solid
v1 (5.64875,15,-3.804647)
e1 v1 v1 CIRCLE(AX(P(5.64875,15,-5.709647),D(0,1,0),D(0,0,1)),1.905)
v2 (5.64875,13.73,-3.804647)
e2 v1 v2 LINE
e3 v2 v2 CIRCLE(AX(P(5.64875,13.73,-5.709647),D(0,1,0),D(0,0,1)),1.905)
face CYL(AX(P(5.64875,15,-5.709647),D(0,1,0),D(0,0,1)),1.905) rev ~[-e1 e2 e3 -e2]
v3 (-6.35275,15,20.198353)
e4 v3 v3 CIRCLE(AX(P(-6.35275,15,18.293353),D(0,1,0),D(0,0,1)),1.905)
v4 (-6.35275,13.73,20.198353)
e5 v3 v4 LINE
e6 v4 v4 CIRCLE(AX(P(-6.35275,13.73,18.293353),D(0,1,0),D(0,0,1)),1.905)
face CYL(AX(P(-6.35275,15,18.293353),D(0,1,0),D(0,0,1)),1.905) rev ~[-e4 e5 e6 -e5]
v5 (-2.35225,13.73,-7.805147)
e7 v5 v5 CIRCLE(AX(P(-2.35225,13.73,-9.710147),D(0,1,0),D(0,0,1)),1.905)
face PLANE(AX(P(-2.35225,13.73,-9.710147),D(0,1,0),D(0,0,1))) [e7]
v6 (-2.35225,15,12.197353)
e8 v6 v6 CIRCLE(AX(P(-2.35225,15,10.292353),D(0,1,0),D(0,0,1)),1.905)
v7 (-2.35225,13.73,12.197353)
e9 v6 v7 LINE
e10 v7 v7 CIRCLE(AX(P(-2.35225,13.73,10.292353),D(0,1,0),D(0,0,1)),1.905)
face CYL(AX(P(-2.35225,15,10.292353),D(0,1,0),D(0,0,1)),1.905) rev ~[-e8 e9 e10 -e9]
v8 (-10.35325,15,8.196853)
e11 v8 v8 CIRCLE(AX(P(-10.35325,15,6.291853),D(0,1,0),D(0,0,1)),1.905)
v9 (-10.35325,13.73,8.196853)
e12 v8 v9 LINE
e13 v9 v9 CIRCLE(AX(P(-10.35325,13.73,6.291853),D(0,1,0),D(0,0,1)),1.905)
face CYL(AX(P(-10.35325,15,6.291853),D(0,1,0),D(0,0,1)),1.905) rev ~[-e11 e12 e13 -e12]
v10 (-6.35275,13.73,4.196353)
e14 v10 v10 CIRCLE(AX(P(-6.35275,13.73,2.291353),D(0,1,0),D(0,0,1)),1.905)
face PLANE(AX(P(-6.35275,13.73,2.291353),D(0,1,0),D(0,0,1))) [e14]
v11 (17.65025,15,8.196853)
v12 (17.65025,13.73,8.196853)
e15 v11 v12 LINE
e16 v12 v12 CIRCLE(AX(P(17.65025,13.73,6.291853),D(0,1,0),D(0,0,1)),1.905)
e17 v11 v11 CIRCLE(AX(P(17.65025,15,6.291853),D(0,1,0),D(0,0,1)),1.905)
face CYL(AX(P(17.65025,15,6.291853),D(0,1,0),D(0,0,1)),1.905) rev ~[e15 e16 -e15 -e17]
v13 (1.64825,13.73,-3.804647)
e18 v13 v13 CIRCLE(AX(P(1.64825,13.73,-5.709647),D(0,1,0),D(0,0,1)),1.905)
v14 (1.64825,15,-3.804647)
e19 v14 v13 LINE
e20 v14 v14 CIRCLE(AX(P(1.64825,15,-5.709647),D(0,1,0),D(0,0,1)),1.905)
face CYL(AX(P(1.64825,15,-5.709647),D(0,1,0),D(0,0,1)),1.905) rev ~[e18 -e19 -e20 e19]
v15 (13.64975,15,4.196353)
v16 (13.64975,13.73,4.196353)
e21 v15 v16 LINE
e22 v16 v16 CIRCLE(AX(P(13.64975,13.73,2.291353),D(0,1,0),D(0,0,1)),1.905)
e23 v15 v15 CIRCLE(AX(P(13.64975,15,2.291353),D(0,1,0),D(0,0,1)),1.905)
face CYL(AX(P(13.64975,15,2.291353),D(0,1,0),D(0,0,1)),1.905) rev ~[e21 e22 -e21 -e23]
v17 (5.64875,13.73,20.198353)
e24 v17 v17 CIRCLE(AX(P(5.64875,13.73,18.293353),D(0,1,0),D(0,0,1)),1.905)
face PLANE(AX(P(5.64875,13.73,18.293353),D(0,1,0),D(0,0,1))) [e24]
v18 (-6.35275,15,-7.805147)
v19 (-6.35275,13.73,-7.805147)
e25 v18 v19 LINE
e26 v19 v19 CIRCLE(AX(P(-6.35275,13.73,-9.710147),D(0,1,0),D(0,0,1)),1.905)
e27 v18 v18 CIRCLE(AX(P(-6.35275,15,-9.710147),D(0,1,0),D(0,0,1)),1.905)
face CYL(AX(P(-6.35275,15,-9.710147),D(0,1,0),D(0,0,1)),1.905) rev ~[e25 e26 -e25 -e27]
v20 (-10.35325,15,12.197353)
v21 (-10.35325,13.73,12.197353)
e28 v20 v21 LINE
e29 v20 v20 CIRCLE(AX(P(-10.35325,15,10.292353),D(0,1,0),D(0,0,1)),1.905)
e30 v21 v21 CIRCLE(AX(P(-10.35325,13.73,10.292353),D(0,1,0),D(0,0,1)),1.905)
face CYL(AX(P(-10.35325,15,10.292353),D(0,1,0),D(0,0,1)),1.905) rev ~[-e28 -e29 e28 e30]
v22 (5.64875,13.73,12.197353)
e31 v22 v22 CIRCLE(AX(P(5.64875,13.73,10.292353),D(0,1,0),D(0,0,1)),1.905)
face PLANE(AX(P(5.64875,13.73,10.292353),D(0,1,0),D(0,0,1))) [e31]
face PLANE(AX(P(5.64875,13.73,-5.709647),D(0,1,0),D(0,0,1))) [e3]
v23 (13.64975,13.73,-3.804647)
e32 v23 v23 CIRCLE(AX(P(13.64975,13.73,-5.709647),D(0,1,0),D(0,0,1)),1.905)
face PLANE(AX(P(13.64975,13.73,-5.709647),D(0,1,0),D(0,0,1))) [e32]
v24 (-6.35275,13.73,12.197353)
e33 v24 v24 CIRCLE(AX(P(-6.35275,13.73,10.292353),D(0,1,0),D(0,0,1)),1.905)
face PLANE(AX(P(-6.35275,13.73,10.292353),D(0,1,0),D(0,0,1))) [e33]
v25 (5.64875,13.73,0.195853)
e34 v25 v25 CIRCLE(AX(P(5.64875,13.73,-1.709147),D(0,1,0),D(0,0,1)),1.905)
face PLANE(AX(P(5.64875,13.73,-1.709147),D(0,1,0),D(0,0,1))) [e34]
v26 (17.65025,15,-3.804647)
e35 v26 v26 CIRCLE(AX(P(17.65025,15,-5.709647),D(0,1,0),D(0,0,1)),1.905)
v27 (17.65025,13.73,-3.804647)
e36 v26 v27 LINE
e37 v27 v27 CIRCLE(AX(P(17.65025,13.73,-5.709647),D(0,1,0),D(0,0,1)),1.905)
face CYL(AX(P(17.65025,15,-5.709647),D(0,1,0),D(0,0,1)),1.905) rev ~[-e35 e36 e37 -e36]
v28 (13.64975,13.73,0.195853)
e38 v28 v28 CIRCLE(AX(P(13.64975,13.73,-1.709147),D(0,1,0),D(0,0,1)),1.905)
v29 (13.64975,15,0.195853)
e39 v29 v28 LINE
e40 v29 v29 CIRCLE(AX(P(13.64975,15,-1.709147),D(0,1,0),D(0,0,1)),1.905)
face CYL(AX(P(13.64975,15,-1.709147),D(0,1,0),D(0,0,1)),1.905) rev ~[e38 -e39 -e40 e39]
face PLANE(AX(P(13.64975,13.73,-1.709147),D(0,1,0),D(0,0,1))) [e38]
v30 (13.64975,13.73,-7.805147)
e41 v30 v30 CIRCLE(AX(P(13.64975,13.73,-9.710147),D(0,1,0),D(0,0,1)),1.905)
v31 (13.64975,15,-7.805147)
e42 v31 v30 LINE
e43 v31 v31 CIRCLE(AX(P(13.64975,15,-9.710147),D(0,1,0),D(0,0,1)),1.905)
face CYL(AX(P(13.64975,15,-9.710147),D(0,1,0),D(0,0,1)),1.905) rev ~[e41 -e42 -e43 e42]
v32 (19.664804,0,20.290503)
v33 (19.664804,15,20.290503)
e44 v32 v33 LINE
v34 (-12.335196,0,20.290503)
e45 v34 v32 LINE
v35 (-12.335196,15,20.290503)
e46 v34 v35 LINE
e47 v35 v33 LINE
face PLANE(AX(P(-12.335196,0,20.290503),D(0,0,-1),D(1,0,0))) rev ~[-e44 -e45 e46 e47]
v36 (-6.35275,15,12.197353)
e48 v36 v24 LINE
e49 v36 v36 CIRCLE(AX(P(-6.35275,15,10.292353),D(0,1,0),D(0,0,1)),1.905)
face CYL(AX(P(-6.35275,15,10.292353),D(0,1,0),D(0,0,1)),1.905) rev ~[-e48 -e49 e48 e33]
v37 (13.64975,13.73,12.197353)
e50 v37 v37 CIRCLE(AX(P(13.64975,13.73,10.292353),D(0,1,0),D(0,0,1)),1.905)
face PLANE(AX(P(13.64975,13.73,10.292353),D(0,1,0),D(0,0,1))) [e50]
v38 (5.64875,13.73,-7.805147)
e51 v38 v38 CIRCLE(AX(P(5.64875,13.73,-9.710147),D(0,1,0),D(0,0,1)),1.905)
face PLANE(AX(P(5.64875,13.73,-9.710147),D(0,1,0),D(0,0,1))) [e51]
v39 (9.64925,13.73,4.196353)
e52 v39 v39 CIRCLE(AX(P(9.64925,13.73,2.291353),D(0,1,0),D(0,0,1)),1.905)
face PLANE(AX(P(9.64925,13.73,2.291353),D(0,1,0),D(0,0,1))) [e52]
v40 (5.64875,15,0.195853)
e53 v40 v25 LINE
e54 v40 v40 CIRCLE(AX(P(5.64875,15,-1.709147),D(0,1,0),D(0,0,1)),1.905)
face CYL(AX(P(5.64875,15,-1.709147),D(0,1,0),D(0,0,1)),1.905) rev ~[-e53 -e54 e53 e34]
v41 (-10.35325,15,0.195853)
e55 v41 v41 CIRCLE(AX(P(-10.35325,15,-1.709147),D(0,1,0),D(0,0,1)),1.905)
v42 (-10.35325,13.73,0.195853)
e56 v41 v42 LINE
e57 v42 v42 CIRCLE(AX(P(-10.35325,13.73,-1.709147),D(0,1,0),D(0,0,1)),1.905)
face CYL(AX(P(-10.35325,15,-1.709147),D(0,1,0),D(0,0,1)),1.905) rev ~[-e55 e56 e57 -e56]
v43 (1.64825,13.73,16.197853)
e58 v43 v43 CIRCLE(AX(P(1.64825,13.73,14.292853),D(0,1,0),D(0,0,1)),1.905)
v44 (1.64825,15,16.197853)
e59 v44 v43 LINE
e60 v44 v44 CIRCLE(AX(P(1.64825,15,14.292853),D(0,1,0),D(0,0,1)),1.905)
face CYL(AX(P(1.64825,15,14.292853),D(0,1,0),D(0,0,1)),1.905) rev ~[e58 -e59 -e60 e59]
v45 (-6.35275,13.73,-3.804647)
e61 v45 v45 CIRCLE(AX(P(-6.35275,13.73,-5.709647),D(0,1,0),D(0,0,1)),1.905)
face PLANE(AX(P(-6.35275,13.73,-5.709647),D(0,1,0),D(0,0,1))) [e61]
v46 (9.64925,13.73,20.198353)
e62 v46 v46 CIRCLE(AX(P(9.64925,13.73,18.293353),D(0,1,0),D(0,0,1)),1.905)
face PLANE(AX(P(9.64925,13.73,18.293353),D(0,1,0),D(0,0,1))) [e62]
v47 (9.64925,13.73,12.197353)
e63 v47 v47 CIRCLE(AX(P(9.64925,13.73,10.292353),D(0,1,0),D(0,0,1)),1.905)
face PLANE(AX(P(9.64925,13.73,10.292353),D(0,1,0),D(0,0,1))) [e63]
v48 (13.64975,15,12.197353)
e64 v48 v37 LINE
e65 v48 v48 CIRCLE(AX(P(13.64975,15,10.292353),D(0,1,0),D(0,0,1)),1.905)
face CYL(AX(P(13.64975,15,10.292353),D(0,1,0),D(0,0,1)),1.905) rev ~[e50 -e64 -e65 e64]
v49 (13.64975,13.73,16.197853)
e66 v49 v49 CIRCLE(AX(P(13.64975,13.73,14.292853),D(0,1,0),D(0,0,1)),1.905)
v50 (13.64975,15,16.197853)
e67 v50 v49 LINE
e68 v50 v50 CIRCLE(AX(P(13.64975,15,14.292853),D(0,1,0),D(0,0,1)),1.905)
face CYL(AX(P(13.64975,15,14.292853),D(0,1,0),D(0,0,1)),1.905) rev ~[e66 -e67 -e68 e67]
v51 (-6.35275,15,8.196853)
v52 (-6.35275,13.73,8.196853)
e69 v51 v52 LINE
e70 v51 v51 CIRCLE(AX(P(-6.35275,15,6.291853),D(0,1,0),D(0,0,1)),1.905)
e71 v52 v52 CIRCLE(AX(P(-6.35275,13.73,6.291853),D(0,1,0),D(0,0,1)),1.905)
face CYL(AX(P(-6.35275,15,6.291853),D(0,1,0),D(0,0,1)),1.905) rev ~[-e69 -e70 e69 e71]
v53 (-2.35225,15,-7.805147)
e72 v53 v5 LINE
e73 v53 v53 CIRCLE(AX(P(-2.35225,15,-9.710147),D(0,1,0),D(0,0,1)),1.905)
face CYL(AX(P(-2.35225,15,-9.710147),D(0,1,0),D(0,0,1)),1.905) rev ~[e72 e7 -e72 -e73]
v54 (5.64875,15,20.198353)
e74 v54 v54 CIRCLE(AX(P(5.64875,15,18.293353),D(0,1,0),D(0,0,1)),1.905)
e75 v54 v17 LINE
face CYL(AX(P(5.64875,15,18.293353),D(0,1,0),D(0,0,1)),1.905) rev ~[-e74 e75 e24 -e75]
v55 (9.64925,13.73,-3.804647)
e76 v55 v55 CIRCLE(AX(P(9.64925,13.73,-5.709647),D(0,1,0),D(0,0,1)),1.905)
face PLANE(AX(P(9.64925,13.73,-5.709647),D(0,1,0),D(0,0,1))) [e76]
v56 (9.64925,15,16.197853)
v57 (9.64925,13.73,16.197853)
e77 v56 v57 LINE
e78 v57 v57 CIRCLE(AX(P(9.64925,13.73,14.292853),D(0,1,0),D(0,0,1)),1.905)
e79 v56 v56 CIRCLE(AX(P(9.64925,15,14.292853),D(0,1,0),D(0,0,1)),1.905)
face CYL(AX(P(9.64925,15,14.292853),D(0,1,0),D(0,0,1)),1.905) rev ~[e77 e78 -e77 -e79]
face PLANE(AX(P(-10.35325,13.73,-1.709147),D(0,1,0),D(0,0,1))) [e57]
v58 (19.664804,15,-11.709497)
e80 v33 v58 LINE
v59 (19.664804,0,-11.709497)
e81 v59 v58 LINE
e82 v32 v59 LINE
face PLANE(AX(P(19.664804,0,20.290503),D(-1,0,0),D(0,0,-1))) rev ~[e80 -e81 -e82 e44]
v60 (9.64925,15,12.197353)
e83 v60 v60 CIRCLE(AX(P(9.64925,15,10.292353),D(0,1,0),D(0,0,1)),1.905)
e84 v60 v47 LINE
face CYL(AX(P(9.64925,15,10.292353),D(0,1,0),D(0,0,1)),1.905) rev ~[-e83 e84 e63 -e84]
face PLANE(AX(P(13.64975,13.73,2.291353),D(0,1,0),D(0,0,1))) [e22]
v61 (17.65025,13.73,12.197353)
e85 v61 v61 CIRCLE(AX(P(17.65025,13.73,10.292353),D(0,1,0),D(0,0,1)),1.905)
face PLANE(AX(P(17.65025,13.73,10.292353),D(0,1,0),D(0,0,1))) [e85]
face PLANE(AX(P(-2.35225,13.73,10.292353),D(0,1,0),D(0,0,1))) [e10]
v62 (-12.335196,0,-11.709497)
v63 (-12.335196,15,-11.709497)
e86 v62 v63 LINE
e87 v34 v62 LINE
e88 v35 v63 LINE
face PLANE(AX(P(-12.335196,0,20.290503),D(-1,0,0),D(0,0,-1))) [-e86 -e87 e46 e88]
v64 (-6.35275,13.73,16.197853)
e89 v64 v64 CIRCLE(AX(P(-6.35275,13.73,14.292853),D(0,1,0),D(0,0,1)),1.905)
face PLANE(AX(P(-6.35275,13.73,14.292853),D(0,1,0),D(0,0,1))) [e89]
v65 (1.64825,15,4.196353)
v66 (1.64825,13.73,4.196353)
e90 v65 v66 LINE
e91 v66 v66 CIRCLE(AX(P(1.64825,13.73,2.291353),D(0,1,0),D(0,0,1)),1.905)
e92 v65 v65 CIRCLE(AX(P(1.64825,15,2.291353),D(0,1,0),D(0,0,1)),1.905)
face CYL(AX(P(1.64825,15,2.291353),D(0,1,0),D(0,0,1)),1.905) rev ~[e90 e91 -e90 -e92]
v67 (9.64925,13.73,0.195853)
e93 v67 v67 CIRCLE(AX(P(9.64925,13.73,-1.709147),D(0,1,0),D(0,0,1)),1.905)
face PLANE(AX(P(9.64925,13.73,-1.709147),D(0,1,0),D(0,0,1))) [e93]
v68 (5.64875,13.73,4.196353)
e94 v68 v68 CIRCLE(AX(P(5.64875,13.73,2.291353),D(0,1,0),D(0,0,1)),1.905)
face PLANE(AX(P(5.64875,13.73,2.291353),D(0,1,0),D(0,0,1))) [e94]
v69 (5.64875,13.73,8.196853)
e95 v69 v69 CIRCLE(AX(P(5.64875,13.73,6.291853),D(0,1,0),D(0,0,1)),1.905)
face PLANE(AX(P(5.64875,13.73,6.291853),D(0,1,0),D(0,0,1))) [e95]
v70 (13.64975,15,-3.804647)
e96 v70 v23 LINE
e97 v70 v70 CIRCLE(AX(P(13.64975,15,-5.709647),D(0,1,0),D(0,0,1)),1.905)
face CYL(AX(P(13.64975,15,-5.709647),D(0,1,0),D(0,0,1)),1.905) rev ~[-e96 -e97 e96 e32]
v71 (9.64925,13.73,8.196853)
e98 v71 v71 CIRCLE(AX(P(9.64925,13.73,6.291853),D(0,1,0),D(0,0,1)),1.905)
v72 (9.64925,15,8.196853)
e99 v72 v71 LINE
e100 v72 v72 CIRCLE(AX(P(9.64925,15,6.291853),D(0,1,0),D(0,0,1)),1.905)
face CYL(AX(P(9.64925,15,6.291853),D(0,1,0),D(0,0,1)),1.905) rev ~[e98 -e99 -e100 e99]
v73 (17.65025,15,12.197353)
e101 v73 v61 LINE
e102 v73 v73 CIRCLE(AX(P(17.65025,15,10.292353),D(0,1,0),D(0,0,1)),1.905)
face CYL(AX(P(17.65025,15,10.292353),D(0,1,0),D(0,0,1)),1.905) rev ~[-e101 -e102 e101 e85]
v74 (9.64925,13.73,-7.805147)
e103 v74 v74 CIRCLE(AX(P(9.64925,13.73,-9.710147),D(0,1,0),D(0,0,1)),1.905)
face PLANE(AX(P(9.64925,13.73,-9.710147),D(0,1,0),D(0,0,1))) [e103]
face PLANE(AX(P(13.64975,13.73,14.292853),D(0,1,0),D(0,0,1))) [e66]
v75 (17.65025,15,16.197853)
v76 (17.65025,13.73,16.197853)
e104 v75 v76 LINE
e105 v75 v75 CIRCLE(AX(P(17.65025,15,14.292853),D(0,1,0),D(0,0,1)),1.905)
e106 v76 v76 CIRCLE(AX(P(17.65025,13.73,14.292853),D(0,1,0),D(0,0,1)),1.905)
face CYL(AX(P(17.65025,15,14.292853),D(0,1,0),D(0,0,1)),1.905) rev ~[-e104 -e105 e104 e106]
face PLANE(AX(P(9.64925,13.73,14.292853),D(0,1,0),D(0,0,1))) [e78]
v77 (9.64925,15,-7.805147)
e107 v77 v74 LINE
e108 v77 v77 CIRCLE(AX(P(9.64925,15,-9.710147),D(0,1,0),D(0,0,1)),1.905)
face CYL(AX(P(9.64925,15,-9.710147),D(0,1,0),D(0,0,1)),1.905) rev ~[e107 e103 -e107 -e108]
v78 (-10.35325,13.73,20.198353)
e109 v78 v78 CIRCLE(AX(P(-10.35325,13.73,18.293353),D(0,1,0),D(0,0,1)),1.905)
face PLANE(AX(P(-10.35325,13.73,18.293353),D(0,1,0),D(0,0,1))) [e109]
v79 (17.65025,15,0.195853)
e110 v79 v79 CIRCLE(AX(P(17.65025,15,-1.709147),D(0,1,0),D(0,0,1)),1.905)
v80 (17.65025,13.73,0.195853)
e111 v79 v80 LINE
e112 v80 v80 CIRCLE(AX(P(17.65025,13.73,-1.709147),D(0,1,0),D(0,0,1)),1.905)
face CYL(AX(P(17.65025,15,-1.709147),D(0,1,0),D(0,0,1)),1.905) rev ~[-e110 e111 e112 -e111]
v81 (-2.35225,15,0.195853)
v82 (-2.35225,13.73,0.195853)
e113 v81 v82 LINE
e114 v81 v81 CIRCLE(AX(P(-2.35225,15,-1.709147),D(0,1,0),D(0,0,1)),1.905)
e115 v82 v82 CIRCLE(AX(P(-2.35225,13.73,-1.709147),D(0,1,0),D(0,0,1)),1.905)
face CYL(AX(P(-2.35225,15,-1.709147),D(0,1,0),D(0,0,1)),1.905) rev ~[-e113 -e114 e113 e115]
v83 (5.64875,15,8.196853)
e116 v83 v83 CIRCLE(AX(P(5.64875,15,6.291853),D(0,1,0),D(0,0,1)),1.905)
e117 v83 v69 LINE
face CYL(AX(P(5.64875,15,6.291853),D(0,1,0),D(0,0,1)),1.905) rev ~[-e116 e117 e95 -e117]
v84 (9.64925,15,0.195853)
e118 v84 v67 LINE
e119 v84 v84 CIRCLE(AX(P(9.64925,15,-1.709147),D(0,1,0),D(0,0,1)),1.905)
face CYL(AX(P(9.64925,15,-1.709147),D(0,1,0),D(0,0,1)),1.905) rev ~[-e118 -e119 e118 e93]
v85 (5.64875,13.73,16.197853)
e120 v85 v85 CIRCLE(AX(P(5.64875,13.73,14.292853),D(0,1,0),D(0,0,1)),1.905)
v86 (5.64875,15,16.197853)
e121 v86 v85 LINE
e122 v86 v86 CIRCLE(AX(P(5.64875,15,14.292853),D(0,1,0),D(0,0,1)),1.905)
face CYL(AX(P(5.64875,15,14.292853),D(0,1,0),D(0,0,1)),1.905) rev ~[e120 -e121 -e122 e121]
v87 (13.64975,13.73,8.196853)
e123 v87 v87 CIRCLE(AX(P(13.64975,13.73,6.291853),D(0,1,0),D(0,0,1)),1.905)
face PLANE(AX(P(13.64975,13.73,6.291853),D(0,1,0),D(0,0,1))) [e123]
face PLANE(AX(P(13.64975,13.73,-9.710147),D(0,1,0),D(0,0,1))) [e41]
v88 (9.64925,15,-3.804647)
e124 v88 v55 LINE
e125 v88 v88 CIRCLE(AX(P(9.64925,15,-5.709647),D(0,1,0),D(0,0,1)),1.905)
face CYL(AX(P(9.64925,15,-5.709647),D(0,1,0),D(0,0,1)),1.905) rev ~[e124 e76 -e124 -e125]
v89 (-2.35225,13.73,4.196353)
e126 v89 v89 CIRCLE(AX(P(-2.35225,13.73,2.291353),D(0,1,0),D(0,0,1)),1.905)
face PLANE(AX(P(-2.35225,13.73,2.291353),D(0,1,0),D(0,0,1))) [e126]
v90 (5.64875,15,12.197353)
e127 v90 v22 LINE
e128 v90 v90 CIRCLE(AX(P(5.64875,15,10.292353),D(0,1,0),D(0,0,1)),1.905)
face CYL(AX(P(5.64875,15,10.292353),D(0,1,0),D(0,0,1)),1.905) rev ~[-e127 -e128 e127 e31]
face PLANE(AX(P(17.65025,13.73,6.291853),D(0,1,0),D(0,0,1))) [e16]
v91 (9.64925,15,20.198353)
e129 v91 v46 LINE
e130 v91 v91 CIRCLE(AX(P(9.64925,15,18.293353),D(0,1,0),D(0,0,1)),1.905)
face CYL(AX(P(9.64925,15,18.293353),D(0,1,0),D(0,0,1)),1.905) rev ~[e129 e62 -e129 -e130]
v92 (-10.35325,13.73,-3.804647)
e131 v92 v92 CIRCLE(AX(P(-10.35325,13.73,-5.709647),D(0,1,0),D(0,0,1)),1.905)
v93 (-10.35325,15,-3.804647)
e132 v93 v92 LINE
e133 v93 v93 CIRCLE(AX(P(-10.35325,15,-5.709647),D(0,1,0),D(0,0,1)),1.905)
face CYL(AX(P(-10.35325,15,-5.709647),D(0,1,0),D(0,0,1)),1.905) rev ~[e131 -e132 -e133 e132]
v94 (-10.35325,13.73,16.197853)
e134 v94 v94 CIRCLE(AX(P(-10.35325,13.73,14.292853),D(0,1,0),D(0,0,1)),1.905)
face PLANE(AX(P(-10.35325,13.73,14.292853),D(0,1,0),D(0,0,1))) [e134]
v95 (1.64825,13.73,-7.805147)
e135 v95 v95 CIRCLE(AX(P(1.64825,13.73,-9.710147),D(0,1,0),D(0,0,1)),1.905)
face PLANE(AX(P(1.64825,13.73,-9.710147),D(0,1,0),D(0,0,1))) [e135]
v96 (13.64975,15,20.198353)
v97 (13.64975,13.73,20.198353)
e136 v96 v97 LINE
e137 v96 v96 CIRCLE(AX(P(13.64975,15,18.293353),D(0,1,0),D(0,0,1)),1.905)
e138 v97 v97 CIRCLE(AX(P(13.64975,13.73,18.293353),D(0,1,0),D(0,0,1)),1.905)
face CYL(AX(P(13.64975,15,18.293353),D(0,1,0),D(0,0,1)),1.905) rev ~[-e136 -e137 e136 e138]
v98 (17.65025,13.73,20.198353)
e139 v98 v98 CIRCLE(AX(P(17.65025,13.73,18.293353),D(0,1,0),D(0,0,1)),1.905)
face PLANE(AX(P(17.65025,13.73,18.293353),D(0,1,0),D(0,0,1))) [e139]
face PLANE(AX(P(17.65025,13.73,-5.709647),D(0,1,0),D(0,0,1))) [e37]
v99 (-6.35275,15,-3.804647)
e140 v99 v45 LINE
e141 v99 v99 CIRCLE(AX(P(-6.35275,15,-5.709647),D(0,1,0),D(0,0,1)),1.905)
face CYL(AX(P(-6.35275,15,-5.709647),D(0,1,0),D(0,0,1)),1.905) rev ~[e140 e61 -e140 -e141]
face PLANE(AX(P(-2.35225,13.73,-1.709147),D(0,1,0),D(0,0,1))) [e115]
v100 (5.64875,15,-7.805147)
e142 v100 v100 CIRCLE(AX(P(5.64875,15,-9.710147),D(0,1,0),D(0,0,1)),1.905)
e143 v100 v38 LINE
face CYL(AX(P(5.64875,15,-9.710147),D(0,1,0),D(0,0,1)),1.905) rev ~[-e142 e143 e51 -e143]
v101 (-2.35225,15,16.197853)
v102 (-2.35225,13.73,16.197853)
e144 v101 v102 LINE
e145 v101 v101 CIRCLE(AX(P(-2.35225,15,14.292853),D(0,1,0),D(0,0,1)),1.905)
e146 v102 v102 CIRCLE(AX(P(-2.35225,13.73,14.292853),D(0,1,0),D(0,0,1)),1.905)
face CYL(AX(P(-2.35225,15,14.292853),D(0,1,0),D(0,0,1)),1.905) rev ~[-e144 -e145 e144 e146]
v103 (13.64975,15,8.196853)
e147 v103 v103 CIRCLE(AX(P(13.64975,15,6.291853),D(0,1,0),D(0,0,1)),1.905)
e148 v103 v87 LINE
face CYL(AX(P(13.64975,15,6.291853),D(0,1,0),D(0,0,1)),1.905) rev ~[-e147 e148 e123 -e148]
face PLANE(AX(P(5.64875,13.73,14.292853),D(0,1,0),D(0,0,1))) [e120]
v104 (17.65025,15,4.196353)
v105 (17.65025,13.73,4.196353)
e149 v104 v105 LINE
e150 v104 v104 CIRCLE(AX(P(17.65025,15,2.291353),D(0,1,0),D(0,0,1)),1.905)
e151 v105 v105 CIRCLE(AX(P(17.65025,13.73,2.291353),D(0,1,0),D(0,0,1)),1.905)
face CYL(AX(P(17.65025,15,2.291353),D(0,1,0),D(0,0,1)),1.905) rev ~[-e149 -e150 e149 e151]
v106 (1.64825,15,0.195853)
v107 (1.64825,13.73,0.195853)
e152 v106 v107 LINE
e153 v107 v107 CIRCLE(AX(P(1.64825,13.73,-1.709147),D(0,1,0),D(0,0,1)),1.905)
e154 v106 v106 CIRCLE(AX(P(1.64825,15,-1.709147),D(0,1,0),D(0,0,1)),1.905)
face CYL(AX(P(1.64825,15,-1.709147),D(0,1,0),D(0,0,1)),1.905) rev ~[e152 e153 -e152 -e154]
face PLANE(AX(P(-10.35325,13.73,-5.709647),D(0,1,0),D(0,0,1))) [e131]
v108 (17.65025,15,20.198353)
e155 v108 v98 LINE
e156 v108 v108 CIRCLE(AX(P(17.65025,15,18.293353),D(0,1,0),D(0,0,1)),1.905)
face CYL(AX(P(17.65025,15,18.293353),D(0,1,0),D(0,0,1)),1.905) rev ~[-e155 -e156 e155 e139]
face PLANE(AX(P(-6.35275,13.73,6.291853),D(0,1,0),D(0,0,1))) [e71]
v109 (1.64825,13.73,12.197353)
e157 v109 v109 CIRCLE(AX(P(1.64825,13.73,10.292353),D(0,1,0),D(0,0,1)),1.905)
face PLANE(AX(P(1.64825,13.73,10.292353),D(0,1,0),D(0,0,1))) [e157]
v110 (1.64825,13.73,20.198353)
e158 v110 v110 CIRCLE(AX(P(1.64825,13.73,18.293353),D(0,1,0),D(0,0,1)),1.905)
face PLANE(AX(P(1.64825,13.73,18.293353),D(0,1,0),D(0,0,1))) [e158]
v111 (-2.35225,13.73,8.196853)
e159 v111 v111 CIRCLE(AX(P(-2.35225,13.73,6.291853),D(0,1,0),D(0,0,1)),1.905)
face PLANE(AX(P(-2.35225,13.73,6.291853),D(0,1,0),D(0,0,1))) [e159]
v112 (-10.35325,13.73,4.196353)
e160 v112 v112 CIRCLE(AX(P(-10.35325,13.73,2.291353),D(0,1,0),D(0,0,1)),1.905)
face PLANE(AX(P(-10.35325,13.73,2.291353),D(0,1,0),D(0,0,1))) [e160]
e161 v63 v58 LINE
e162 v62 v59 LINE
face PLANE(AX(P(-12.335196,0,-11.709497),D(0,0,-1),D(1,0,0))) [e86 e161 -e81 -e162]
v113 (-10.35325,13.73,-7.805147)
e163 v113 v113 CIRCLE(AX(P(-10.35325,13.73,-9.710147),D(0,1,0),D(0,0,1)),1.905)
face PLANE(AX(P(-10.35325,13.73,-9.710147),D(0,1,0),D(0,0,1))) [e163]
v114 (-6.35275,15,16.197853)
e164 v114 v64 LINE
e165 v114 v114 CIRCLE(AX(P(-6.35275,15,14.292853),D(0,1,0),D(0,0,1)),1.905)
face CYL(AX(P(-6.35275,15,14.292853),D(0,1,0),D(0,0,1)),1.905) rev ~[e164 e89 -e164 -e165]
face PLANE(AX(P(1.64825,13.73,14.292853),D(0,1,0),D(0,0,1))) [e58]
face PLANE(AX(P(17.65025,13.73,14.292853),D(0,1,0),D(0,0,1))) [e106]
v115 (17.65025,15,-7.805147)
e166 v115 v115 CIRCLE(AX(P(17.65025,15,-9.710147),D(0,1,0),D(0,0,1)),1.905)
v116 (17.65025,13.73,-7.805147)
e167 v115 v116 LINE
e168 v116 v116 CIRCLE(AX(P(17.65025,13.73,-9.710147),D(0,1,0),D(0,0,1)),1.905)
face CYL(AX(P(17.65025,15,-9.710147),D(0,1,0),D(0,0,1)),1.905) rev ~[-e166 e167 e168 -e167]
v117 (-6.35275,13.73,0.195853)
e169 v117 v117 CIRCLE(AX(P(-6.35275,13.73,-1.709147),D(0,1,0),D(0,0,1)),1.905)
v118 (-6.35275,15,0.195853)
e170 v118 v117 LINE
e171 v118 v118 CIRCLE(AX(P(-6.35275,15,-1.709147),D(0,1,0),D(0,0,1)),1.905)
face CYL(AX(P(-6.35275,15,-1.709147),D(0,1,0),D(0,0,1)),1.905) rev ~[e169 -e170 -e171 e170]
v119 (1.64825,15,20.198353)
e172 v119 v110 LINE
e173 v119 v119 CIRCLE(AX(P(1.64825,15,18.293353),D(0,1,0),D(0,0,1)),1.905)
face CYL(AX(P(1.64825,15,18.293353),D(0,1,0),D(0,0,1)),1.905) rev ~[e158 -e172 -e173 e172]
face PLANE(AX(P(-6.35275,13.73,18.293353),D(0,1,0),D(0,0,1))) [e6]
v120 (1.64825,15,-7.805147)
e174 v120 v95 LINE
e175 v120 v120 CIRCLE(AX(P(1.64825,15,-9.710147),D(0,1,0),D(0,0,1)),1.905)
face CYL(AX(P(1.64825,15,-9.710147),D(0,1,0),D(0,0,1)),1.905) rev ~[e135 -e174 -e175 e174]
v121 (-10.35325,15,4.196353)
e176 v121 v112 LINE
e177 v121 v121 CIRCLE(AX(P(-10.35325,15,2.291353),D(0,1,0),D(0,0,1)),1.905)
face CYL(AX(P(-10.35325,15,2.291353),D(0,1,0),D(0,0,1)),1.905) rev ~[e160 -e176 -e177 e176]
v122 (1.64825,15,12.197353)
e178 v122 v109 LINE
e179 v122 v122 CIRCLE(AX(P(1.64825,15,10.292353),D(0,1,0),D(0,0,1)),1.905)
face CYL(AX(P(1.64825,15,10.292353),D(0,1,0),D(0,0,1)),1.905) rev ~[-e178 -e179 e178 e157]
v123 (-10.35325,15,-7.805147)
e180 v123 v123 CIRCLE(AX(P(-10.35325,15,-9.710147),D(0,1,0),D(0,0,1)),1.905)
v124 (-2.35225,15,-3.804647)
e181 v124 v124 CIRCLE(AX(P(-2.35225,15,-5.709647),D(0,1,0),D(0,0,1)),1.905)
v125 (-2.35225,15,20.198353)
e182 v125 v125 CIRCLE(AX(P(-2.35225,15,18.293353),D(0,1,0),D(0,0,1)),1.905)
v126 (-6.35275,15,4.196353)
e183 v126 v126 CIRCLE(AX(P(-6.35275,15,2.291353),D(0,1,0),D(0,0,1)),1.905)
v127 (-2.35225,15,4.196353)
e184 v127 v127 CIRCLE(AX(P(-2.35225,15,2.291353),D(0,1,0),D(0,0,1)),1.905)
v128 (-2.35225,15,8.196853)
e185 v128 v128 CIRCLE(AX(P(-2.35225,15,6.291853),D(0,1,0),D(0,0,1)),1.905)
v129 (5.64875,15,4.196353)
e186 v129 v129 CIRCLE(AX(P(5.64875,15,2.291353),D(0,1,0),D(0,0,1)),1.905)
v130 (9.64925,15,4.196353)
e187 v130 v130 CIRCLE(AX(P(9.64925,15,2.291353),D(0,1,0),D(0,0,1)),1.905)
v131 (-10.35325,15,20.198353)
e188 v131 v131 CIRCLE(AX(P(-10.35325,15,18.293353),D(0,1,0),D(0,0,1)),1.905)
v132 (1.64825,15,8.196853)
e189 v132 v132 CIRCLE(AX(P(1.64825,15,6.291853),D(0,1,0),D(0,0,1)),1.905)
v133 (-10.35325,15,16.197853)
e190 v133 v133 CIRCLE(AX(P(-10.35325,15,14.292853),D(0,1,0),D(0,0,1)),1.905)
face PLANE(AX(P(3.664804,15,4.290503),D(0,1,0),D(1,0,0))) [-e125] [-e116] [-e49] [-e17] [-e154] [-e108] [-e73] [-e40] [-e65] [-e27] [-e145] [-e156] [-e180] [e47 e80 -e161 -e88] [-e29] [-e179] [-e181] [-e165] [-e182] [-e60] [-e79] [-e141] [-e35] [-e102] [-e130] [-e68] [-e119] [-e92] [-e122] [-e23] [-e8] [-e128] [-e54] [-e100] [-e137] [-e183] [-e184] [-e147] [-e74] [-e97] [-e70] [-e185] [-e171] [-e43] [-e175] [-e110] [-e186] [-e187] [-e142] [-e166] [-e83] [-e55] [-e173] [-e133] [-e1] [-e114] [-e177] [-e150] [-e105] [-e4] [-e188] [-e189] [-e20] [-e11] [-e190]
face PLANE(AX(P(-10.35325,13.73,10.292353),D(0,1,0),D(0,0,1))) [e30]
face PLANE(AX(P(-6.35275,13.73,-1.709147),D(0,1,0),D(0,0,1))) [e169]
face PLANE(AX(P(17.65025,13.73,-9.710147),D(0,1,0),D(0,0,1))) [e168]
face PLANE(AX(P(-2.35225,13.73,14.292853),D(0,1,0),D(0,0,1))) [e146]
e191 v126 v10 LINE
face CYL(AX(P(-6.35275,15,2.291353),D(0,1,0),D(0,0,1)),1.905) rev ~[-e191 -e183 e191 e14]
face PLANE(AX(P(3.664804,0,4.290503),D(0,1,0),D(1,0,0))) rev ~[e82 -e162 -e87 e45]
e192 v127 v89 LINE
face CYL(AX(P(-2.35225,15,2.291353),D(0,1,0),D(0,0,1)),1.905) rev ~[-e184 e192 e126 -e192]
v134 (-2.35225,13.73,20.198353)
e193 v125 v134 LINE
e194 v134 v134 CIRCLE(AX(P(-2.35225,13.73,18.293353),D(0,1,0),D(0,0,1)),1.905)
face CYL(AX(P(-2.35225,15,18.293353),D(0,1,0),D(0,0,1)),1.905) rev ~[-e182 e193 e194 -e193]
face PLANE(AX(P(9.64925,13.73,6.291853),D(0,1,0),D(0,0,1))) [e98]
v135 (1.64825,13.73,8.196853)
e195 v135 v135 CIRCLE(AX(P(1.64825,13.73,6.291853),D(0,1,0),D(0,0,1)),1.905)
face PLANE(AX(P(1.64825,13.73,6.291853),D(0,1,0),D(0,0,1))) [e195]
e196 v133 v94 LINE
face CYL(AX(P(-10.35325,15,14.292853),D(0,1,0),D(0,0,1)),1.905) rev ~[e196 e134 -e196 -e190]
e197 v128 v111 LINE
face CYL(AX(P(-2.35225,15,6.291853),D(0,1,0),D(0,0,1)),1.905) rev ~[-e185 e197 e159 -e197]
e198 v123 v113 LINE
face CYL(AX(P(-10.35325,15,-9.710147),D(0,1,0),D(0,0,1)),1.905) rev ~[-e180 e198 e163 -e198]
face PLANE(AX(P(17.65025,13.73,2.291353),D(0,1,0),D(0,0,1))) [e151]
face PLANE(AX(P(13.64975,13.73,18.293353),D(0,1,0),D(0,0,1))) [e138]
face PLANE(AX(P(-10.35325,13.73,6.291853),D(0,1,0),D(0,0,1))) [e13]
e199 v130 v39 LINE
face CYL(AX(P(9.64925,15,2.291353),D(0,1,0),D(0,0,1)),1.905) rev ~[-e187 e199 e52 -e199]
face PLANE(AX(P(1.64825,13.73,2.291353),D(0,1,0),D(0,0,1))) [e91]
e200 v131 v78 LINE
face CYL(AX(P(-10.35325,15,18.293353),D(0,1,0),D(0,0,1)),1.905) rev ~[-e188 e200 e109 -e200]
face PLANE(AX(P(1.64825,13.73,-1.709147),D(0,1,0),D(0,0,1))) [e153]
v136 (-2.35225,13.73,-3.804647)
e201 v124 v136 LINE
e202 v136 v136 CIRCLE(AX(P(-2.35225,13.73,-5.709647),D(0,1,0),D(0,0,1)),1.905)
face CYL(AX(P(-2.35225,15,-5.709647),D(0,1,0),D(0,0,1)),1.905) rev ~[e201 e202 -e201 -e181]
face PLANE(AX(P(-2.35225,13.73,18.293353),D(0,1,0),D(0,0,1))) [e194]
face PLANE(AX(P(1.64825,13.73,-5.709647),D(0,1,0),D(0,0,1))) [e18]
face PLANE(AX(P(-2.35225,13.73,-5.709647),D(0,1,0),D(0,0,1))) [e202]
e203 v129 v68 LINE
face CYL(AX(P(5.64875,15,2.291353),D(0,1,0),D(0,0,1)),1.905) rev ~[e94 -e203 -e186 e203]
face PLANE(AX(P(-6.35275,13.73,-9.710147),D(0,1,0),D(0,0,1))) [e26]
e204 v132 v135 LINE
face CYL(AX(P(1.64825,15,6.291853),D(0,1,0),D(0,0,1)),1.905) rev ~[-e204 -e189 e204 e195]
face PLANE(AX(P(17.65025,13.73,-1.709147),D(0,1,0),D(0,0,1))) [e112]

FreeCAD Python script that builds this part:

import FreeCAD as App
import Part
import Sketcher

V = App.Vector
Q = App.Units.Quantity

doc = App.newDocument("Part")
body = doc.addObject("PartDesign::Body", "Body")

# Sketch on XZ plane
sketch1 = body.newObject("Sketcher::SketchObject", "Sketch")
sketch1.AttachmentSupport = (doc.getObject("XZ_Plane"), [""])
sketch1.MapMode = "FlatFace"
sketch1.addGeometry(Part.LineSegment(V(-12, -12, 0), V(-12, 20, 0)), False)
sketch1.addGeometry(Part.LineSegment(V(-12, 20, 0), V(20, 20, 0)), False)
sketch1.addGeometry(Part.LineSegment(V(20, 20, 0), V(20, -12, 0)), False)
sketch1.addGeometry(Part.LineSegment(V(20, -12, 0), V(-12, -12, 0)), False)
sketch1.addConstraint(Sketcher.Constraint("Coincident", 0, 2, 1, 1))
sketch1.addConstraint(Sketcher.Constraint("Coincident", 1, 2, 2, 1))
sketch1.addConstraint(Sketcher.Constraint("Coincident", 2, 2, 3, 1))
sketch1.addConstraint(Sketcher.Constraint("Coincident", 3, 2, 0, 1))
sketch1.addConstraint(Sketcher.Constraint("Vertical", 0))
sketch1.addConstraint(Sketcher.Constraint("Horizontal", 1))
sketch1.addConstraint(Sketcher.Constraint("Vertical", 2))
sketch1.addConstraint(Sketcher.Constraint("Horizontal", 3))
sketch1.addConstraint(Sketcher.Constraint("Equal", 3, 0))
sketch1.addConstraint(Sketcher.Constraint("DistanceX", 1, 1, 1, 2, Q("32 mm")))
sketch1.addConstraint(Sketcher.Constraint("DistanceX", 0, 2, -1, 1, Q("12.335196 mm")))
sketch1.addConstraint(Sketcher.Constraint("DistanceY", -1, 1, 0, 2, Q("20.290503 mm")))
pad1 = body.newObject("PartDesign::Pad", "Pad")
pad1.Profile = sketch1
pad1.Length = 15
pad1.Reversed = True

# Sketch on XZ plane
sketch2 = body.newObject("Sketcher::SketchObject", "Sketch001")
sketch2.AttachmentSupport = (doc.getObject("XZ_Plane"), [""])
sketch2.MapMode = "FlatFace"
sketch2.AttachmentOffset = App.Placement(V(0, 0, -15), App.Rotation())
sketch2.addGeometry(Part.Circle(V(-10.4, 18.3, 0), V(0, 0, 1), 1.9), False)
sketch2.addGeometry(Part.Circle(V(-6.4, 18.3, 0), V(0, 0, 1), 1.9), False)
sketch2.addGeometry(Part.Circle(V(-2.4, 18.3, 0), V(0, 0, 1), 1.9), False)
sketch2.addGeometry(Part.Circle(V(1.6, 18.3, 0), V(0, 0, 1), 1.9), False)
sketch2.addGeometry(Part.Circle(V(5.6, 18.3, 0), V(0, 0, 1), 1.9), False)
sketch2.addGeometry(Part.Circle(V(9.6, 18.3, 0), V(0, 0, 1), 1.9), False)
sketch2.addGeometry(Part.Circle(V(13.6, 18.3, 0), V(0, 0, 1), 1.9), False)
sketch2.addGeometry(Part.Circle(V(17.7, 18.3, 0), V(0, 0, 1), 1.9), False)
sketch2.addGeometry(Part.Circle(V(-6.4, 14.3, 0), V(0, 0, 1), 1.9), False)
sketch2.addGeometry(Part.Circle(V(-2.4, 14.3, 0), V(0, 0, 1), 1.9), False)
sketch2.addGeometry(Part.Circle(V(1.6, 14.3, 0), V(0, 0, 1), 1.9), False)
sketch2.addGeometry(Part.Circle(V(5.6, 14.3, 0), V(0, 0, 1), 1.9), False)
sketch2.addGeometry(Part.Circle(V(9.6, 14.3, 0), V(0, 0, 1), 1.9), False)
sketch2.addGeometry(Part.Circle(V(13.6, 14.3, 0), V(0, 0, 1), 1.9), False)
sketch2.addGeometry(Part.Circle(V(17.7, 14.3, 0), V(0, 0, 1), 1.9), False)
sketch2.addGeometry(Part.Circle(V(-6.4, 10.3, 0), V(0, 0, 1), 1.9), False)
sketch2.addGeometry(Part.Circle(V(-2.4, 10.3, 0), V(0, 0, 1), 1.9), False)
sketch2.addGeometry(Part.Circle(V(1.6, 10.3, 0), V(0, 0, 1), 1.9), False)
sketch2.addGeometry(Part.Circle(V(5.6, 10.3, 0), V(0, 0, 1), 1.9), False)
sketch2.addGeometry(Part.Circle(V(9.6, 10.3, 0), V(0, 0, 1), 1.9), False)
sketch2.addGeometry(Part.Circle(V(13.6, 10.3, 0), V(0, 0, 1), 1.9), False)
sketch2.addGeometry(Part.Circle(V(17.7, 10.3, 0), V(0, 0, 1), 1.9), False)
sketch2.addGeometry(Part.Circle(V(-6.4, 6.3, 0), V(0, 0, 1), 1.9), False)
sketch2.addGeometry(Part.Circle(V(-2.4, 6.3, 0), V(0, 0, 1), 1.9), False)
sketch2.addGeometry(Part.Circle(V(1.6, 6.3, 0), V(0, 0, 1), 1.9), False)
sketch2.addGeometry(Part.Circle(V(5.6, 6.3, 0), V(0, 0, 1), 1.9), False)
sketch2.addGeometry(Part.Circle(V(9.6, 6.3, 0), V(0, 0, 1), 1.9), False)
sketch2.addGeometry(Part.Circle(V(13.6, 6.3, 0), V(0, 0, 1), 1.9), False)
sketch2.addGeometry(Part.Circle(V(17.7, 6.3, 0), V(0, 0, 1), 1.9), False)
sketch2.addGeometry(Part.Circle(V(-6.4, 2.3, 0), V(0, 0, 1), 1.9), False)
sketch2.addGeometry(Part.Circle(V(-2.4, 2.3, 0), V(0, 0, 1), 1.9), False)
sketch2.addGeometry(Part.Circle(V(1.6, 2.3, 0), V(0, 0, 1), 1.9), False)
sketch2.addGeometry(Part.Circle(V(5.6, 2.3, 0), V(0, 0, 1), 1.9), False)
sketch2.addGeometry(Part.Circle(V(9.6, 2.3, 0), V(0, 0, 1), 1.9), False)
sketch2.addGeometry(Part.Circle(V(13.6, 2.3, 0), V(0, 0, 1), 1.9), False)
sketch2.addGeometry(Part.Circle(V(17.7, 2.3, 0), V(0, 0, 1), 1.9), False)
sketch2.addGeometry(Part.Circle(V(-6.4, -1.7, 0), V(0, 0, 1), 1.9), False)
sketch2.addGeometry(Part.Circle(V(-2.4, -1.7, 0), V(0, 0, 1), 1.9), False)
sketch2.addGeometry(Part.Circle(V(1.6, -1.7, 0), V(0, 0, 1), 1.9), False)
sketch2.addGeometry(Part.Circle(V(5.6, -1.7, 0), V(0, 0, 1), 1.9), False)
sketch2.addGeometry(Part.Circle(V(9.6, -1.7, 0), V(0, 0, 1), 1.9), False)
sketch2.addGeometry(Part.Circle(V(13.6, -1.7, 0), V(0, 0, 1), 1.9), False)
sketch2.addGeometry(Part.Circle(V(17.7, -1.7, 0), V(0, 0, 1), 1.9), False)
sketch2.addGeometry(Part.Circle(V(-6.4, -5.7, 0), V(0, 0, 1), 1.9), False)
sketch2.addGeometry(Part.Circle(V(-2.4, -5.7, 0), V(0, 0, 1), 1.9), False)
sketch2.addGeometry(Part.Circle(V(1.6, -5.7, 0), V(0, 0, 1), 1.9), False)
sketch2.addGeometry(Part.Circle(V(5.6, -5.7, 0), V(0, 0, 1), 1.9), False)
sketch2.addGeometry(Part.Circle(V(9.6, -5.7, 0), V(0, 0, 1), 1.9), False)
sketch2.addGeometry(Part.Circle(V(13.6, -5.7, 0), V(0, 0, 1), 1.9), False)
sketch2.addGeometry(Part.Circle(V(17.7, -5.7, 0), V(0, 0, 1), 1.9), False)
sketch2.addGeometry(Part.Circle(V(-6.4, -9.7, 0), V(0, 0, 1), 1.9), False)
sketch2.addGeometry(Part.Circle(V(-2.4, -9.7, 0), V(0, 0, 1), 1.9), False)
sketch2.addGeometry(Part.Circle(V(1.6, -9.7, 0), V(0, 0, 1), 1.9), False)
sketch2.addGeometry(Part.Circle(V(5.6, -9.7, 0), V(0, 0, 1), 1.9), False)
sketch2.addGeometry(Part.Circle(V(9.6, -9.7, 0), V(0, 0, 1), 1.9), False)
sketch2.addGeometry(Part.Circle(V(13.6, -9.7, 0), V(0, 0, 1), 1.9), False)
sketch2.addGeometry(Part.Circle(V(17.7, -9.7, 0), V(0, 0, 1), 1.9), False)
sketch2.addGeometry(Part.Circle(V(-10.4, 14.3, 0), V(0, 0, 1), 1.9), False)
sketch2.addGeometry(Part.Circle(V(-10.4, 10.3, 0), V(0, 0, 1), 1.9), False)
sketch2.addGeometry(Part.Circle(V(-10.4, 6.3, 0), V(0, 0, 1), 1.9), False)
sketch2.addGeometry(Part.Circle(V(-10.4, 2.3, 0), V(0, 0, 1), 1.9), False)
sketch2.addGeometry(Part.Circle(V(-10.4, -1.7, 0), V(0, 0, 1), 1.9), False)
sketch2.addGeometry(Part.Circle(V(-10.4, -5.7, 0), V(0, 0, 1), 1.9), False)
sketch2.addGeometry(Part.Circle(V(-10.4, -9.7, 0), V(0, 0, 1), 1.9), False)
sketch2.addConstraint(Sketcher.Constraint("Equal", 0, 1))
sketch2.addConstraint(Sketcher.Constraint("Equal", 1, 2))
sketch2.addConstraint(Sketcher.Constraint("Equal", 2, 3))
sketch2.addConstraint(Sketcher.Constraint("Equal", 3, 4))
sketch2.addConstraint(Sketcher.Constraint("Equal", 4, 5))
sketch2.addConstraint(Sketcher.Constraint("Equal", 5, 6))
sketch2.addConstraint(Sketcher.Constraint("Equal", 6, 7))
sketch2.addConstraint(Sketcher.Constraint("Equal", 7, 8))
sketch2.addConstraint(Sketcher.Constraint("Equal", 8, 9))
sketch2.addConstraint(Sketcher.Constraint("Equal", 9, 10))
sketch2.addConstraint(Sketcher.Constraint("Equal", 10, 11))
sketch2.addConstraint(Sketcher.Constraint("Equal", 11, 12))
sketch2.addConstraint(Sketcher.Constraint("Equal", 12, 13))
sketch2.addConstraint(Sketcher.Constraint("Equal", 13, 14))
sketch2.addConstraint(Sketcher.Constraint("Equal", 14, 15))
sketch2.addConstraint(Sketcher.Constraint("Equal", 15, 16))
sketch2.addConstraint(Sketcher.Constraint("Equal", 16, 17))
sketch2.addConstraint(Sketcher.Constraint("Equal", 17, 18))
sketch2.addConstraint(Sketcher.Constraint("Equal", 18, 19))
sketch2.addConstraint(Sketcher.Constraint("Equal", 19, 20))
sketch2.addConstraint(Sketcher.Constraint("Equal", 20, 21))
sketch2.addConstraint(Sketcher.Constraint("Equal", 21, 22))
sketch2.addConstraint(Sketcher.Constraint("Equal", 22, 23))
sketch2.addConstraint(Sketcher.Constraint("Equal", 23, 24))
sketch2.addConstraint(Sketcher.Constraint("Equal", 24, 25))
sketch2.addConstraint(Sketcher.Constraint("Equal", 25, 26))
sketch2.addConstraint(Sketcher.Constraint("Equal", 26, 27))
sketch2.addConstraint(Sketcher.Constraint("Equal", 27, 28))
sketch2.addConstraint(Sketcher.Constraint("Equal", 28, 29))
sketch2.addConstraint(Sketcher.Constraint("Equal", 29, 30))
sketch2.addConstraint(Sketcher.Constraint("Equal", 30, 31))
sketch2.addConstraint(Sketcher.Constraint("Equal", 31, 32))
sketch2.addConstraint(Sketcher.Constraint("Equal", 32, 33))
sketch2.addConstraint(Sketcher.Constraint("Equal", 33, 34))
sketch2.addConstraint(Sketcher.Constraint("Equal", 34, 35))
sketch2.addConstraint(Sketcher.Constraint("Equal", 35, 36))
sketch2.addConstraint(Sketcher.Constraint("Equal", 36, 37))
sketch2.addConstraint(Sketcher.Constraint("Equal", 37, 38))
sketch2.addConstraint(Sketcher.Constraint("Equal", 38, 39))
sketch2.addConstraint(Sketcher.Constraint("Equal", 39, 40))
sketch2.addConstraint(Sketcher.Constraint("Equal", 40, 41))
sketch2.addConstraint(Sketcher.Constraint("Equal", 41, 42))
sketch2.addConstraint(Sketcher.Constraint("Equal", 42, 43))
sketch2.addConstraint(Sketcher.Constraint("Equal", 43, 44))
sketch2.addConstraint(Sketcher.Constraint("Equal", 44, 45))
sketch2.addConstraint(Sketcher.Constraint("Equal", 45, 46))
sketch2.addConstraint(Sketcher.Constraint("Equal", 46, 47))
sketch2.addConstraint(Sketcher.Constraint("Equal", 47, 48))
sketch2.addConstraint(Sketcher.Constraint("Equal", 48, 49))
sketch2.addConstraint(Sketcher.Constraint("Equal", 49, 50))
sketch2.addConstraint(Sketcher.Constraint("Equal", 50, 51))
sketch2.addConstraint(Sketcher.Constraint("Equal", 51, 52))
sketch2.addConstraint(Sketcher.Constraint("Equal", 52, 53))
sketch2.addConstraint(Sketcher.Constraint("Equal", 53, 54))
sketch2.addConstraint(Sketcher.Constraint("Equal", 54, 55))
sketch2.addConstraint(Sketcher.Constraint("Equal", 55, 56))
sketch2.addConstraint(Sketcher.Constraint("Equal", 56, 57))
sketch2.addConstraint(Sketcher.Constraint("Equal", 57, 58))
sketch2.addConstraint(Sketcher.Constraint("Equal", 58, 59))
sketch2.addConstraint(Sketcher.Constraint("Equal", 59, 60))
sketch2.addConstraint(Sketcher.Constraint("Equal", 60, 61))
sketch2.addConstraint(Sketcher.Constraint("Equal", 61, 62))
sketch2.addConstraint(Sketcher.Constraint("Equal", 62, 63))
sketch2.addConstraint(Sketcher.Constraint("Horizontal", 0, 3, 1, 3))
sketch2.addConstraint(Sketcher.Constraint("Horizontal", 1, 3, 2, 3))
sketch2.addConstraint(Sketcher.Constraint("Horizontal", 2, 3, 3, 3))
sketch2.addConstraint(Sketcher.Constraint("Horizontal", 3, 3, 4, 3))
sketch2.addConstraint(Sketcher.Constraint("Horizontal", 4, 3, 5, 3))
sketch2.addConstraint(Sketcher.Constraint("Horizontal", 5, 3, 6, 3))
sketch2.addConstraint(Sketcher.Constraint("Horizontal", 6, 3, 7, 3))
sketch2.addConstraint(Sketcher.Constraint("Horizontal", 8, 3, 9, 3))
sketch2.addConstraint(Sketcher.Constraint("Horizontal", 9, 3, 10, 3))
sketch2.addConstraint(Sketcher.Constraint("Horizontal", 10, 3, 11, 3))
sketch2.addConstraint(Sketcher.Constraint("Horizontal", 11, 3, 12, 3))
sketch2.addConstraint(Sketcher.Constraint("Horizontal", 12, 3, 13, 3))
sketch2.addConstraint(Sketcher.Constraint("Horizontal", 13, 3, 14, 3))
sketch2.addConstraint(Sketcher.Constraint("Horizontal", 15, 3, 16, 3))
sketch2.addConstraint(Sketcher.Constraint("Horizontal", 16, 3, 17, 3))
sketch2.addConstraint(Sketcher.Constraint("Horizontal", 17, 3, 18, 3))
sketch2.addConstraint(Sketcher.Constraint("Horizontal", 18, 3, 19, 3))
sketch2.addConstraint(Sketcher.Constraint("Horizontal", 19, 3, 20, 3))
sketch2.addConstraint(Sketcher.Constraint("Horizontal", 20, 3, 21, 3))
sketch2.addConstraint(Sketcher.Constraint("Horizontal", 22, 3, 23, 3))
sketch2.addConstraint(Sketcher.Constraint("Horizontal", 23, 3, 24, 3))
sketch2.addConstraint(Sketcher.Constraint("Horizontal", 24, 3, 25, 3))
sketch2.addConstraint(Sketcher.Constraint("Horizontal", 25, 3, 26, 3))
sketch2.addConstraint(Sketcher.Constraint("Horizontal", 26, 3, 27, 3))
sketch2.addConstraint(Sketcher.Constraint("Horizontal", 27, 3, 28, 3))
sketch2.addConstraint(Sketcher.Constraint("Horizontal", 29, 3, 30, 3))
sketch2.addConstraint(Sketcher.Constraint("Horizontal", 30, 3, 31, 3))
sketch2.addConstraint(Sketcher.Constraint("Horizontal", 31, 3, 32, 3))
sketch2.addConstraint(Sketcher.Constraint("Horizontal", 32, 3, 33, 3))
sketch2.addConstraint(Sketcher.Constraint("Horizontal", 33, 3, 34, 3))
sketch2.addConstraint(Sketcher.Constraint("Horizontal", 34, 3, 35, 3))
sketch2.addConstraint(Sketcher.Constraint("Horizontal", 36, 3, 37, 3))
sketch2.addConstraint(Sketcher.Constraint("Horizontal", 37, 3, 38, 3))
sketch2.addConstraint(Sketcher.Constraint("Horizontal", 38, 3, 39, 3))
sketch2.addConstraint(Sketcher.Constraint("Horizontal", 39, 3, 40, 3))
sketch2.addConstraint(Sketcher.Constraint("Horizontal", 40, 3, 41, 3))
sketch2.addConstraint(Sketcher.Constraint("Horizontal", 41, 3, 42, 3))
sketch2.addConstraint(Sketcher.Constraint("Horizontal", 43, 3, 44, 3))
sketch2.addConstraint(Sketcher.Constraint("Horizontal", 44, 3, 45, 3))
sketch2.addConstraint(Sketcher.Constraint("Horizontal", 45, 3, 46, 3))
sketch2.addConstraint(Sketcher.Constraint("Horizontal", 46, 3, 47, 3))
sketch2.addConstraint(Sketcher.Constraint("Horizontal", 47, 3, 48, 3))
sketch2.addConstraint(Sketcher.Constraint("Horizontal", 48, 3, 49, 3))
sketch2.addConstraint(Sketcher.Constraint("Horizontal", 50, 3, 51, 3))
sketch2.addConstraint(Sketcher.Constraint("Horizontal", 51, 3, 52, 3))
sketch2.addConstraint(Sketcher.Constraint("Horizontal", 52, 3, 53, 3))
sketch2.addConstraint(Sketcher.Constraint("Horizontal", 53, 3, 54, 3))
sketch2.addConstraint(Sketcher.Constraint("Horizontal", 54, 3, 55, 3))
sketch2.addConstraint(Sketcher.Constraint("Horizontal", 55, 3, 56, 3))
sketch2.addConstraint(Sketcher.Constraint("Horizontal", 14, 3, 57, 3))
sketch2.addConstraint(Sketcher.Constraint("Horizontal", 21, 3, 58, 3))
sketch2.addConstraint(Sketcher.Constraint("Horizontal", 28, 3, 59, 3))
sketch2.addConstraint(Sketcher.Constraint("Horizontal", 35, 3, 60, 3))
sketch2.addConstraint(Sketcher.Constraint("Horizontal", 42, 3, 61, 3))
sketch2.addConstraint(Sketcher.Constraint("Horizontal", 49, 3, 62, 3))
sketch2.addConstraint(Sketcher.Constraint("Horizontal", 56, 3, 63, 3))
sketch2.addConstraint(Sketcher.Constraint("Vertical", 1, 3, 8, 3))
sketch2.addConstraint(Sketcher.Constraint("Vertical", 2, 3, 9, 3))
sketch2.addConstraint(Sketcher.Constraint("Vertical", 3, 3, 10, 3))
sketch2.addConstraint(Sketcher.Constraint("Vertical", 4, 3, 11, 3))
sketch2.addConstraint(Sketcher.Constraint("Vertical", 5, 3, 12, 3))
sketch2.addConstraint(Sketcher.Constraint("Vertical", 6, 3, 13, 3))
sketch2.addConstraint(Sketcher.Constraint("Vertical", 7, 3, 14, 3))
sketch2.addConstraint(Sketcher.Constraint("Vertical", 8, 3, 15, 3))
sketch2.addConstraint(Sketcher.Constraint("Vertical", 9, 3, 16, 3))
sketch2.addConstraint(Sketcher.Constraint("Vertical", 10, 3, 17, 3))
sketch2.addConstraint(Sketcher.Constraint("Vertical", 11, 3, 18, 3))
sketch2.addConstraint(Sketcher.Constraint("Vertical", 12, 3, 19, 3))
sketch2.addConstraint(Sketcher.Constraint("Vertical", 13, 3, 20, 3))
sketch2.addConstraint(Sketcher.Constraint("Vertical", 14, 3, 21, 3))
sketch2.addConstraint(Sketcher.Constraint("Vertical", 15, 3, 22, 3))
sketch2.addConstraint(Sketcher.Constraint("Vertical", 16, 3, 23, 3))
sketch2.addConstraint(Sketcher.Constraint("Vertical", 17, 3, 24, 3))
sketch2.addConstraint(Sketcher.Constraint("Vertical", 18, 3, 25, 3))
sketch2.addConstraint(Sketcher.Constraint("Vertical", 19, 3, 26, 3))
sketch2.addConstraint(Sketcher.Constraint("Vertical", 20, 3, 27, 3))
sketch2.addConstraint(Sketcher.Constraint("Vertical", 21, 3, 28, 3))
sketch2.addConstraint(Sketcher.Constraint("Vertical", 22, 3, 29, 3))
sketch2.addConstraint(Sketcher.Constraint("Vertical", 23, 3, 30, 3))
sketch2.addConstraint(Sketcher.Constraint("Vertical", 24, 3, 31, 3))
sketch2.addConstraint(Sketcher.Constraint("Vertical", 25, 3, 32, 3))
sketch2.addConstraint(Sketcher.Constraint("Vertical", 26, 3, 33, 3))
sketch2.addConstraint(Sketcher.Constraint("Vertical", 27, 3, 34, 3))
sketch2.addConstraint(Sketcher.Constraint("Vertical", 28, 3, 35, 3))
sketch2.addConstraint(Sketcher.Constraint("Vertical", 29, 3, 36, 3))
sketch2.addConstraint(Sketcher.Constraint("Vertical", 30, 3, 37, 3))
sketch2.addConstraint(Sketcher.Constraint("Vertical", 31, 3, 38, 3))
sketch2.addConstraint(Sketcher.Constraint("Vertical", 32, 3, 39, 3))
sketch2.addConstraint(Sketcher.Constraint("Vertical", 33, 3, 40, 3))
sketch2.addConstraint(Sketcher.Constraint("Vertical", 34, 3, 41, 3))
sketch2.addConstraint(Sketcher.Constraint("Vertical", 35, 3, 42, 3))
sketch2.addConstraint(Sketcher.Constraint("Vertical", 36, 3, 43, 3))
sketch2.addConstraint(Sketcher.Constraint("Vertical", 37, 3, 44, 3))
sketch2.addConstraint(Sketcher.Constraint("Vertical", 38, 3, 45, 3))
sketch2.addConstraint(Sketcher.Constraint("Vertical", 39, 3, 46, 3))
sketch2.addConstraint(Sketcher.Constraint("Vertical", 40, 3, 47, 3))
sketch2.addConstraint(Sketcher.Constraint("Vertical", 41, 3, 48, 3))
sketch2.addConstraint(Sketcher.Constraint("Vertical", 42, 3, 49, 3))
sketch2.addConstraint(Sketcher.Constraint("Vertical", 43, 3, 50, 3))
sketch2.addConstraint(Sketcher.Constraint("Vertical", 44, 3, 51, 3))
sketch2.addConstraint(Sketcher.Constraint("Vertical", 45, 3, 52, 3))
sketch2.addConstraint(Sketcher.Constraint("Vertical", 46, 3, 53, 3))
sketch2.addConstraint(Sketcher.Constraint("Vertical", 47, 3, 54, 3))
sketch2.addConstraint(Sketcher.Constraint("Vertical", 48, 3, 55, 3))
sketch2.addConstraint(Sketcher.Constraint("Vertical", 49, 3, 56, 3))
sketch2.addConstraint(Sketcher.Constraint("Vertical", 0, 3, 57, 3))
sketch2.addConstraint(Sketcher.Constraint("Vertical", 57, 3, 58, 3))
sketch2.addConstraint(Sketcher.Constraint("Vertical", 58, 3, 59, 3))
sketch2.addConstraint(Sketcher.Constraint("Vertical", 59, 3, 60, 3))
sketch2.addConstraint(Sketcher.Constraint("Vertical", 60, 3, 61, 3))
sketch2.addConstraint(Sketcher.Constraint("Vertical", 61, 3, 62, 3))
sketch2.addConstraint(Sketcher.Constraint("Vertical", 62, 3, 63, 3))
sketch2.addConstraint(Sketcher.Constraint("Diameter", 0, Q("3.81 mm")))
sketch2.addConstraint(Sketcher.Constraint("DistanceX", 0, 3, -1, 1, Q("10.35325 mm")))
sketch2.addConstraint(Sketcher.Constraint("DistanceX", 1, 3, -1, 1, Q("6.35275 mm")))
sketch2.addConstraint(Sketcher.Constraint("DistanceX", 2, 3, -1, 1, Q("2.35225 mm")))
sketch2.addConstraint(Sketcher.Constraint("DistanceX", -1, 1, 3, 3, Q("1.64825 mm")))
sketch2.addConstraint(Sketcher.Constraint("DistanceX", -1, 1, 4, 3, Q("5.64875 mm")))
sketch2.addConstraint(Sketcher.Constraint("DistanceX", -1, 1, 5, 3, Q("9.64925 mm")))
sketch2.addConstraint(Sketcher.Constraint("DistanceX", -1, 1, 6, 3, Q("13.64975 mm")))
sketch2.addConstraint(Sketcher.Constraint("DistanceX", -1, 1, 7, 3, Q("17.65025 mm")))
sketch2.addConstraint(Sketcher.Constraint("DistanceY", -1, 1, 0, 3, Q("18.293353 mm")))
sketch2.addConstraint(Sketcher.Constraint("DistanceY", -1, 1, 8, 3, Q("14.292853 mm")))
sketch2.addConstraint(Sketcher.Constraint("DistanceY", -1, 1, 15, 3, Q("10.292353 mm")))
sketch2.addConstraint(Sketcher.Constraint("DistanceY", -1, 1, 22, 3, Q("6.291853 mm")))
sketch2.addConstraint(Sketcher.Constraint("DistanceY", -1, 1, 29, 3, Q("2.291353 mm")))
sketch2.addConstraint(Sketcher.Constraint("DistanceY", 36, 3, -1, 1, Q("1.709147 mm")))
sketch2.addConstraint(Sketcher.Constraint("DistanceY", 43, 3, -1, 1, Q("5.709647 mm")))
sketch2.addConstraint(Sketcher.Constraint("DistanceY", 50, 3, -1, 1, Q("9.710147 mm")))
pocket1 = body.newObject("PartDesign::Pocket", "Pocket")
pocket1.Profile = sketch2
pocket1.Length = 1.27
pocket1.Reversed = True

doc.recompute()
